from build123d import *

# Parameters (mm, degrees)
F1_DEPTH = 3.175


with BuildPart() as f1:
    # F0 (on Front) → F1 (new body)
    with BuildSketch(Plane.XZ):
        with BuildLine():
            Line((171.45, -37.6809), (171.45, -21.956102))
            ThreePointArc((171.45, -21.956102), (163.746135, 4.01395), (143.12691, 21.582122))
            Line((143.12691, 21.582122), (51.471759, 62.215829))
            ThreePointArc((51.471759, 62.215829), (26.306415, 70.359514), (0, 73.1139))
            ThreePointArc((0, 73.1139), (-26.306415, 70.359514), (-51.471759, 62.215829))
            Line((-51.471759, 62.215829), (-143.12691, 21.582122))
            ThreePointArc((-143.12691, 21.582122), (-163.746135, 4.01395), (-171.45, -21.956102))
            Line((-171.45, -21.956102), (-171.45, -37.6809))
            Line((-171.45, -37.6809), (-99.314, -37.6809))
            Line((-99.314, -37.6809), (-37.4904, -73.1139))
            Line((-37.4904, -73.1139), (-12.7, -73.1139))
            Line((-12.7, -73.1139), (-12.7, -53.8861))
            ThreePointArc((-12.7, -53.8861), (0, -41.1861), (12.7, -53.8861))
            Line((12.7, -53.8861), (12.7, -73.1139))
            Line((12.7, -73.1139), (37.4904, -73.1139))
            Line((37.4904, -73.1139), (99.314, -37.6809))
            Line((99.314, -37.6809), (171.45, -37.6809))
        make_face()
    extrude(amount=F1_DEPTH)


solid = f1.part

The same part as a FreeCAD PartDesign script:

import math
import FreeCAD as App
import Part
import Sketcher
from FreeCAD import Vector
Q = App.Units.Quantity

doc = App.newDocument("Part")
body = doc.addObject("PartDesign::Body", "Body")

# Sketch on XZ plane
sketch1 = body.newObject("Sketcher::SketchObject", "Sketch")
sketch1.AttachmentSupport = (doc.getObject("XZ_Plane"), [""])
sketch1.MapMode = "FlatFace"
sketch1.addGeometry([
    Part.LineSegment(Vector(171.45, -37.6809, 0), Vector(171.45, -21.956102, 0)),  # 0
    Part.ArcOfCircle(Part.Circle(Vector(123.824998, -21.956103, 0), Vector(0, 0, 1), 47.625002), math.radians(0.000001), math.radians(66.090732)),  # 1
    Part.LineSegment(Vector(143.12691, 21.582122, 0), Vector(51.471759, 62.215829, 0)),  # 2
    Part.ArcOfCircle(Part.Circle(Vector(0.000004, -53.886078, 0), Vector(0, 0, 1), 126.999978), math.radians(66.090731), math.radians(90.000002)),  # 3
    Part.ArcOfCircle(Part.Circle(Vector(-0.000004, -53.886078, 0), Vector(0, 0, 1), 126.999978), math.radians(89.999998), math.radians(113.909269)),  # 4
    Part.LineSegment(Vector(-51.471759, 62.215829, 0), Vector(-143.12691, 21.582122, 0)),  # 5
    Part.ArcOfCircle(Part.Circle(Vector(-123.824998, -21.956103, 0), Vector(0, 0, 1), 47.625002), math.radians(113.909268), math.radians(179.999999)),  # 6
    Part.LineSegment(Vector(-171.45, -21.956102, 0), Vector(-171.45, -37.6809, 0)),  # 7
    Part.LineSegment(Vector(-171.45, -37.6809, 0), Vector(-99.314, -37.6809, 0)),  # 8
    Part.LineSegment(Vector(-99.314, -37.6809, 0), Vector(-37.4904, -73.1139, 0)),  # 9
    Part.LineSegment(Vector(-37.4904, -73.1139, 0), Vector(-12.7, -73.1139, 0)),  # 10
    Part.LineSegment(Vector(-12.7, -73.1139, 0), Vector(-12.7, -53.8861, 0)),  # 11
    Part.ArcOfCircle(Part.Circle(Vector(0, -53.8861, 0), Vector(0, 0, 1), 12.7), math.radians(0), math.radians(180)),  # 12
    Part.LineSegment(Vector(12.7, -53.8861, 0), Vector(12.7, -73.1139, 0)),  # 13
    Part.LineSegment(Vector(12.7, -73.1139, 0), Vector(37.4904, -73.1139, 0)),  # 14
    Part.LineSegment(Vector(37.4904, -73.1139, 0), Vector(99.314, -37.6809, 0)),  # 15
    Part.LineSegment(Vector(99.314, -37.6809, 0), Vector(171.45, -37.6809, 0)),  # 16
], False)
sketch1.addConstraint([
    Sketcher.Constraint("Tangent", 0, 2, 1, 1),
    Sketcher.Constraint("Tangent", 1, 2, 2, 1),
    Sketcher.Constraint("Tangent", 2, 2, 3, 1),
    Sketcher.Constraint("Tangent", 3, 2, 4, 1),
    Sketcher.Constraint("Tangent", 4, 2, 5, 1),
    Sketcher.Constraint("Tangent", 5, 2, 6, 1),
    Sketcher.Constraint("Tangent", 6, 2, 7, 1),
    Sketcher.Constraint("Coincident", 7, 2, 8, 1),
    Sketcher.Constraint("Coincident", 8, 2, 9, 1),
    Sketcher.Constraint("Coincident", 9, 2, 10, 1),
    Sketcher.Constraint("Coincident", 10, 2, 11, 1),
    Sketcher.Constraint("Tangent", 11, 2, 12, 2),
    Sketcher.Constraint("Tangent", 12, 1, 13, 1),
    Sketcher.Constraint("Coincident", 13, 2, 14, 1),
    Sketcher.Constraint("Coincident", 14, 2, 15, 1),
    Sketcher.Constraint("Coincident", 15, 2, 16, 1),
    Sketcher.Constraint("Coincident", 16, 2, 0, 1),
    Sketcher.Constraint("Vertical", 0),
    Sketcher.Constraint("Vertical", 7),
    Sketcher.Constraint("Horizontal", 8),
    Sketcher.Constraint("Horizontal", 10),
    Sketcher.Constraint("Vertical", 11),
    Sketcher.Constraint("Vertical", 13),
    Sketcher.Constraint("Horizontal", 14),
    Sketcher.Constraint("Horizontal", 16),
    Sketcher.Constraint("Equal", 3, 4),
    Sketcher.Constraint("Equal", 1, 6),
    Sketcher.Constraint("Symmetric", 1, 3, 6, 3, -2),
    Sketcher.Constraint("Symmetric", 10, 2, 13, 2, -2),
    Sketcher.Constraint("Symmetric", 8, 2, 15, 2, -2),
    Sketcher.Constraint("PointOnObject", 3, 2, -2),
    Sketcher.Constraint("Horizontal", 2, 2, 4, 2),
    Sketcher.Constraint("Equal", 10, 14),
    Sketcher.Constraint("Radius", 12, Q("0.5 in")),
    Sketcher.Constraint("Radius", 1, Q("1.8750001 in")),
    Sketcher.Constraint("DistanceY", 12, 3, 3, 2, Q("5 in")),
    Sketcher.Constraint("DistanceX", 8, 1, 8, 2, Q("2.84 in")),
    Sketcher.Constraint("DistanceX", 10, 1, 10, 2, Q("0.976 in")),
    Sketcher.Constraint("DistanceY", 11, 1, 11, 2, Q("0.757 in")),
    Sketcher.Constraint("DistanceX", -1, 1, 0, 2, Q("6.75 in")),
    Sketcher.Constraint("Radius", 3, Q("126.999978 mm")),
    Sketcher.Constraint("DistanceY", 9, 2, 8, 2, Q("1.395 in")),
    Sketcher.Constraint("DistanceY", 12, 3, -1, 1, Q("2.1215 in")),
    Sketcher.Constraint("DistanceY", 3, 3, 1, 2, Q("75.4682 mm")),
])
pad1 = body.newObject("PartDesign::Pad", "Pad")
pad1.Profile = sketch1
pad1.Length = Q("0.125 in")

doc.recompute()
